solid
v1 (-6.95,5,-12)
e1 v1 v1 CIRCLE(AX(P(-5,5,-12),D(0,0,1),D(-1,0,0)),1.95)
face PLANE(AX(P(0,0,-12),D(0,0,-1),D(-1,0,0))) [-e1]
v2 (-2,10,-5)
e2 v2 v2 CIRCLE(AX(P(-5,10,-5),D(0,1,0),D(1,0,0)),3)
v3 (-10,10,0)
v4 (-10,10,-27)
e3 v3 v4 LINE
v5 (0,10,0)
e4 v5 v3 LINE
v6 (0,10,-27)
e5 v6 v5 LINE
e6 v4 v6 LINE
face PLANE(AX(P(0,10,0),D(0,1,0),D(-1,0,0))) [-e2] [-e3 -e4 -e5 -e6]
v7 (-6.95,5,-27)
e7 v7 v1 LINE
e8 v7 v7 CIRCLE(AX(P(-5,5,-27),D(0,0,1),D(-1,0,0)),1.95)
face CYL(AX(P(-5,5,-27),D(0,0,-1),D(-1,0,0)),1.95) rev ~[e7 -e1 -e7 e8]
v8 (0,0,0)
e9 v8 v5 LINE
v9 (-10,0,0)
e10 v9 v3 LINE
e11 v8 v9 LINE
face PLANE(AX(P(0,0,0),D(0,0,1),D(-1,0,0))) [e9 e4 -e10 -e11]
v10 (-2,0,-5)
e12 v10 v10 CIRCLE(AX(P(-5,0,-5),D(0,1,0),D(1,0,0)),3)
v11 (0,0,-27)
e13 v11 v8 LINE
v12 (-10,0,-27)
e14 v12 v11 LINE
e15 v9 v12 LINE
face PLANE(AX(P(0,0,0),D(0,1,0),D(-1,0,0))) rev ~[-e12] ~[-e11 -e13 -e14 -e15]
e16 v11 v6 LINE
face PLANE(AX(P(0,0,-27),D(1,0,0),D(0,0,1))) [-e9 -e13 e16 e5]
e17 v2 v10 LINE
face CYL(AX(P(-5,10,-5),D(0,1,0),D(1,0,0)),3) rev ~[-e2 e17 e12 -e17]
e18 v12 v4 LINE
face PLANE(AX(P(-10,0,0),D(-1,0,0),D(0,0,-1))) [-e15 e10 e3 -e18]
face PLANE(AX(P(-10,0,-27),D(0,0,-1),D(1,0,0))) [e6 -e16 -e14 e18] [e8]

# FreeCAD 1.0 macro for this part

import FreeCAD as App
import Part
import Sketcher
from FreeCAD import Vector
Q = App.Units.Quantity

doc = App.newDocument("Part")
body = doc.addObject("PartDesign::Body", "Body")

# Sketch on XZ plane
sketch1 = doc.addObject("Sketcher::SketchObject", "Sketch")
body.addObject(sketch1)
sketch1.AttachmentSupport = (doc.XZ_Plane, [""])
sketch1.MapMode = "FlatFace"
sketch1.addGeometry([
    Part.LineSegment(Vector(-10, 0, 0), Vector(0, 0, 0)),
    Part.LineSegment(Vector(0, 0, 0), Vector(0, -27, 0)),
    Part.LineSegment(Vector(0, -27, 0), Vector(-10, -27, 0)),
    Part.LineSegment(Vector(-10, -27, 0), Vector(-10, 0, 0)),
], False)
sketch1.addConstraint([
    Sketcher.Constraint("Coincident", 0, 2, 1, 1),
    Sketcher.Constraint("Coincident", 1, 2, 2, 1),
    Sketcher.Constraint("Coincident", 2, 2, 3, 1),
    Sketcher.Constraint("Coincident", 3, 2, 0, 1),
    Sketcher.Constraint("Horizontal", 0),
    Sketcher.Constraint("Vertical", 1),
    Sketcher.Constraint("Horizontal", 2),
    Sketcher.Constraint("Vertical", 3),
    Sketcher.Constraint("Coincident", 0, 2, -1, 1),
    Sketcher.Constraint("DistanceX", 0, 1, 0, 2, Q("10 mm")),
    Sketcher.Constraint("DistanceY", 1, 2, 1, 1, Q("27 mm")),
])
pad1 = doc.addObject("PartDesign::Pad", "Pad")
body.addObject(pad1)
pad1.Profile = sketch1
pad1.Length = 10
pad1.Reversed = True

# Sketch on XZ plane
sketch2 = doc.addObject("Sketcher::SketchObject", "Sketch001")
body.addObject(sketch2)
sketch2.AttachmentSupport = (doc.XZ_Plane, [""])
sketch2.MapMode = "FlatFace"
sketch2.AttachmentOffset = App.Placement(Vector(0, 0, -10), App.Rotation())
sketch2.addGeometry(Part.Circle(Vector(-5, -5, 0), Vector(0, 0, 1), 3), False)
sketch2.addConstraint([
    Sketcher.Constraint("Diameter", 0, Q("6 mm")),
    Sketcher.Constraint("DistanceX", 0, 3, -1, 1, Q("5 mm")),
    Sketcher.Constraint("DistanceY", 0, 3, -1, 1, Q("5 mm")),
])
pocket1 = doc.addObject("PartDesign::Pocket", "Pocket")
body.addObject(pocket1)
pocket1.Profile = sketch2
pocket1.Length = 10
pocket1.Reversed = True

# Sketch on XY plane
sketch3 = doc.addObject("Sketcher::SketchObject", "Sketch002")
body.addObject(sketch3)
sketch3.AttachmentSupport = (doc.XY_Plane, [""])
sketch3.MapMode = "FlatFace"
sketch3.AttachmentOffset = App.Placement(Vector(0, 0, -27), App.Rotation())
sketch3.addGeometry(Part.Circle(Vector(-5, 5, 0), Vector(0, 0, 1), 1.9), False)
sketch3.addConstraint([
    Sketcher.Constraint("Diameter", 0, Q("3.9 mm")),
    Sketcher.Constraint("DistanceX", 0, 3, -1, 1, Q("5 mm")),
    Sketcher.Constraint("DistanceY", -1, 1, 0, 3, Q("5 mm")),
])
pocket2 = doc.addObject("PartDesign::Pocket", "Pocket001")
body.addObject(pocket2)
pocket2.Profile = sketch3
pocket2.Length = 15
pocket2.Reversed = True

doc.recompute()
